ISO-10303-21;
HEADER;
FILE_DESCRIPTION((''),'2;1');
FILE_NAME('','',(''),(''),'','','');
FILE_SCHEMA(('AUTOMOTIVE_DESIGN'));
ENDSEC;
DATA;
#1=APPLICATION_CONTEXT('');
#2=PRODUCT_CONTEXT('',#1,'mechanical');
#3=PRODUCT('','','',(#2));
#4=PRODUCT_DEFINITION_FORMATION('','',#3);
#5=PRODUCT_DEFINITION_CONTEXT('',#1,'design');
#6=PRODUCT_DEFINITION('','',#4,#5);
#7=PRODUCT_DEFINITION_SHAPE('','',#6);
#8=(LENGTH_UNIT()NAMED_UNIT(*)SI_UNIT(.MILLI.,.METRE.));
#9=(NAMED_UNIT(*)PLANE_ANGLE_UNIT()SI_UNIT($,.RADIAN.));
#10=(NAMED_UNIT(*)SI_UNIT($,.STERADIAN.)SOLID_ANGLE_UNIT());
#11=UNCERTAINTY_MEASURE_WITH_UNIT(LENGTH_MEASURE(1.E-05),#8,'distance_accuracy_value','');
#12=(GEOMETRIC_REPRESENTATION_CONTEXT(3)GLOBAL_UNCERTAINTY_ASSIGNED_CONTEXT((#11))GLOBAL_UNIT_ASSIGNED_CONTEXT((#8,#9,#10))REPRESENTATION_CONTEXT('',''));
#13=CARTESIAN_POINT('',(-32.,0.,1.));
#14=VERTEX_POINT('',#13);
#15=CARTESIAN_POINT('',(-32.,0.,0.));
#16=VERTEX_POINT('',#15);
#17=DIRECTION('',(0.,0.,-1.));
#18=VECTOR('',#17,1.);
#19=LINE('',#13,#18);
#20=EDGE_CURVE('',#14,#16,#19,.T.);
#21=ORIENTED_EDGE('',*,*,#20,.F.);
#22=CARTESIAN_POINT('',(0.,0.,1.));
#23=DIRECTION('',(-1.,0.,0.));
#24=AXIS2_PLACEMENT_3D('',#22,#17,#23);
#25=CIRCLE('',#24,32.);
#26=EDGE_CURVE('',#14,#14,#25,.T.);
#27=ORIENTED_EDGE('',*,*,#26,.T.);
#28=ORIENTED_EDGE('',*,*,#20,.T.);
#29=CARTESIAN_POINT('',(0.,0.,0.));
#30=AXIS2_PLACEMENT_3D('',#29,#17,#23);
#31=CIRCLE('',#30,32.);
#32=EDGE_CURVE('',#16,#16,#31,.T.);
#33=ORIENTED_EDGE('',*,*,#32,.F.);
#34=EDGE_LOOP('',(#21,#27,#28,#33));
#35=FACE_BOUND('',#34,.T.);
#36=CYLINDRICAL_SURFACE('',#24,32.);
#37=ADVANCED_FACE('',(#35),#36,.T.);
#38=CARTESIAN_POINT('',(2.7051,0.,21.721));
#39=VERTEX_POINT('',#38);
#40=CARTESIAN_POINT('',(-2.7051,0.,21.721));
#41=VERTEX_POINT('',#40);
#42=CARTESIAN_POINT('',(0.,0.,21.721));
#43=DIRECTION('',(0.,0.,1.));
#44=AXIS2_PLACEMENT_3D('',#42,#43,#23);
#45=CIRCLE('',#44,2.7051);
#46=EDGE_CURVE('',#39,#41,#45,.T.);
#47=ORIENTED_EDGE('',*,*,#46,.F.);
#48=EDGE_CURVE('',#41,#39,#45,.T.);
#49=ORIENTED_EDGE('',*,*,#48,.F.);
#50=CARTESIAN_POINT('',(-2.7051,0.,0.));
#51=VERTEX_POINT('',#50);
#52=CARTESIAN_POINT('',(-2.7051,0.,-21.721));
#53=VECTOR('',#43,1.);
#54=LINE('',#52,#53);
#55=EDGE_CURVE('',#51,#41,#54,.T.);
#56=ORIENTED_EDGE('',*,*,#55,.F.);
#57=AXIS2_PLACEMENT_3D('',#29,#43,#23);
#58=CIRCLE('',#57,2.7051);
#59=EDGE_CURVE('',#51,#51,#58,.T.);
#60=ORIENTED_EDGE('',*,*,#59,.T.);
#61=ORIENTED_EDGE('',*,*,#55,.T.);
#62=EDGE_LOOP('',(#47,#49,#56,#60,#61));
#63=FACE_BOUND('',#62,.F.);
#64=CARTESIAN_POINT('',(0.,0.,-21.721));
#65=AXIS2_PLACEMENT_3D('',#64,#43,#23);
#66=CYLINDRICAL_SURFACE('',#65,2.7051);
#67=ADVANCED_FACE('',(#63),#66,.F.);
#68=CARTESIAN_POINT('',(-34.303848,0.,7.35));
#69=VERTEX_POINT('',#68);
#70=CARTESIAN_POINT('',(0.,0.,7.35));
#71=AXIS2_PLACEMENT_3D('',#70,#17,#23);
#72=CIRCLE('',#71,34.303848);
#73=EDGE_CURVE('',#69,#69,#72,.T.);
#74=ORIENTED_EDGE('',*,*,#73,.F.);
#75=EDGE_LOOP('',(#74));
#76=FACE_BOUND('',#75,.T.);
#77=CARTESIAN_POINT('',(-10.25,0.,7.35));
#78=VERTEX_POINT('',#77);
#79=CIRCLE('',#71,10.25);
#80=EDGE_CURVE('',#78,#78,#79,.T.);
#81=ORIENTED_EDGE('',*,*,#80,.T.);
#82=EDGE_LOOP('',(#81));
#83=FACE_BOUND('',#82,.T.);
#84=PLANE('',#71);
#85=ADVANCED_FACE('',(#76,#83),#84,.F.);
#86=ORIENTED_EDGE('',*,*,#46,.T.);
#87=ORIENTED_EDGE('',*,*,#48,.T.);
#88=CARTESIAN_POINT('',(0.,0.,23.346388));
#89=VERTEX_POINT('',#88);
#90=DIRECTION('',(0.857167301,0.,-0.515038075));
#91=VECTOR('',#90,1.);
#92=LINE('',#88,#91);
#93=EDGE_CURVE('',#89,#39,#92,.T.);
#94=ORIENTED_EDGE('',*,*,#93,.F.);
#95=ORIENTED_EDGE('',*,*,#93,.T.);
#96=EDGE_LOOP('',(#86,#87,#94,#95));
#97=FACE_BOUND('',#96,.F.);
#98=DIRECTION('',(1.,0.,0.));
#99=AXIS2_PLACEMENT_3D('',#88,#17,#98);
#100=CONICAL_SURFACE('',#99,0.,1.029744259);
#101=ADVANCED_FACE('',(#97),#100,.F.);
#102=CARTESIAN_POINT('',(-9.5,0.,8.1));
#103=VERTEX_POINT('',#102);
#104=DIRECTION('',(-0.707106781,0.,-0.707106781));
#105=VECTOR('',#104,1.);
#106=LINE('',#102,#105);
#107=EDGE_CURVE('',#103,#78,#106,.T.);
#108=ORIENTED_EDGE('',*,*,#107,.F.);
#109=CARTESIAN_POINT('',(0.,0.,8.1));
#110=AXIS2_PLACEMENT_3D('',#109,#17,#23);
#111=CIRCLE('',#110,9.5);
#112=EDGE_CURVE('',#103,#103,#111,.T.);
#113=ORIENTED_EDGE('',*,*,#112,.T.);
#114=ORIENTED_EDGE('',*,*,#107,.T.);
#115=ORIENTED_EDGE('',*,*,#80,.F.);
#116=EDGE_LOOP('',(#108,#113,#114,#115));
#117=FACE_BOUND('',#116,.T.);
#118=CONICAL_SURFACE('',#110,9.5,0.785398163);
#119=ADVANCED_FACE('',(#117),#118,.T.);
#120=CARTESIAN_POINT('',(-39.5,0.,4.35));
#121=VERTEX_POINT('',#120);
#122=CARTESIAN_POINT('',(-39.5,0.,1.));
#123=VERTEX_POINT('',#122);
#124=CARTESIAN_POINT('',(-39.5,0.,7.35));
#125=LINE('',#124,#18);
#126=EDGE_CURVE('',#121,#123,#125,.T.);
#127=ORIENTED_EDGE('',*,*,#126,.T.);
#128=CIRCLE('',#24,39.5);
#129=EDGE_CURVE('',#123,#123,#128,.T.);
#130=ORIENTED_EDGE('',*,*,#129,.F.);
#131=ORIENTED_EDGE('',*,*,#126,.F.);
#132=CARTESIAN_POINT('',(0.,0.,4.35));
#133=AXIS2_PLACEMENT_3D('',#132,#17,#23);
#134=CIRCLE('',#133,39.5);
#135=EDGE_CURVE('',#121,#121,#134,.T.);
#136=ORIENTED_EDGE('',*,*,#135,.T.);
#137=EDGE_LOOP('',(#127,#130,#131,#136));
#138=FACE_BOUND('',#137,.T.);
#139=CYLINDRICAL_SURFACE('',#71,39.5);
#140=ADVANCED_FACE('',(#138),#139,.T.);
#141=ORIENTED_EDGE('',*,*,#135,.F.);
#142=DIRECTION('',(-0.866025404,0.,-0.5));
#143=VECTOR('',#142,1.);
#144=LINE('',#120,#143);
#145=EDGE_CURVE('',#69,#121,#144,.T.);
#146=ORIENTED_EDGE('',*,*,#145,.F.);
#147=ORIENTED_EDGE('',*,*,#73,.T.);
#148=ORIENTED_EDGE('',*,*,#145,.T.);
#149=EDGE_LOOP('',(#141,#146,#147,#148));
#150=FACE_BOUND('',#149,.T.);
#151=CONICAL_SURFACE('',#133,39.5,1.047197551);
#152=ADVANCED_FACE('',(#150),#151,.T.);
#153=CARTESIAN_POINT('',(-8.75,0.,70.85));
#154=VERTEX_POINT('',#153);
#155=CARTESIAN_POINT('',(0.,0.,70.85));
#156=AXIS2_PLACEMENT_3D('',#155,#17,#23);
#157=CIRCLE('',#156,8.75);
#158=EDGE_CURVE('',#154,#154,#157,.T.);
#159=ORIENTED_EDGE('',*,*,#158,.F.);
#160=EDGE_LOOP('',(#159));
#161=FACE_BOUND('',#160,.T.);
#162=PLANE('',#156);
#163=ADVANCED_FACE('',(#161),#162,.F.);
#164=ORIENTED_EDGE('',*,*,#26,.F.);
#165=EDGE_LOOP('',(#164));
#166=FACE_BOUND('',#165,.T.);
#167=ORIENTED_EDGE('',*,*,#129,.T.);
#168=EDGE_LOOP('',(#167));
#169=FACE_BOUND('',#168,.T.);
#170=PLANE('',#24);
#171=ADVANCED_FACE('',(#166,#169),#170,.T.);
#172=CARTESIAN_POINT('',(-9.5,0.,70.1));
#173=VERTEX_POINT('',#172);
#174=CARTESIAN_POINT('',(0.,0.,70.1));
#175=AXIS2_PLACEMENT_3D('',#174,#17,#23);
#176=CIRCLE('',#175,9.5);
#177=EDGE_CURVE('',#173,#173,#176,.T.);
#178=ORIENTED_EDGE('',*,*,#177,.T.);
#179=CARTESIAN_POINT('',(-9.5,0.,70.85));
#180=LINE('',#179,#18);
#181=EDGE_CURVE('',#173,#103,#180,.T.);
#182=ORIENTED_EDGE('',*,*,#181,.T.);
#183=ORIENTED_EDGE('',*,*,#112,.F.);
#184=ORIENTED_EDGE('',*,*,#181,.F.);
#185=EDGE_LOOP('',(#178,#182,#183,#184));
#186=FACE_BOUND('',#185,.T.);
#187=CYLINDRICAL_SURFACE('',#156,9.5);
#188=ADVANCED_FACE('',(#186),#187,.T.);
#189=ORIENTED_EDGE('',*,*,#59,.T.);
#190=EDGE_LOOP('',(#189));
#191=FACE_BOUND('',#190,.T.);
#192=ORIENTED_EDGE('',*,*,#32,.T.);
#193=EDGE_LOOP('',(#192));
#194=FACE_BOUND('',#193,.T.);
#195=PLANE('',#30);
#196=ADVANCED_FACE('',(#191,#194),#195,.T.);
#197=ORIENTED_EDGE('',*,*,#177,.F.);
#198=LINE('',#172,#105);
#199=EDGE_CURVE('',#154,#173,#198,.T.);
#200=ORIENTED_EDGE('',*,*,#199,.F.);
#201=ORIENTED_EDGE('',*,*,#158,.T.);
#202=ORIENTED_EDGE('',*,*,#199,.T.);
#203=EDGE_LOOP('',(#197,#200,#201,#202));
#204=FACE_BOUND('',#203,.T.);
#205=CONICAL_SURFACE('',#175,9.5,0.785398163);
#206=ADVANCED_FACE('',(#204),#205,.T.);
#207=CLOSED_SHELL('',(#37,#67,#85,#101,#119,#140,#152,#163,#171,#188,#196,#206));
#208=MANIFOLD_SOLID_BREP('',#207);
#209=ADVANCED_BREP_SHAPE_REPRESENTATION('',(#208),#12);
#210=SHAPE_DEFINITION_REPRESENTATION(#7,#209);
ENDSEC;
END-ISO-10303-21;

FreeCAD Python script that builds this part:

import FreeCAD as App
import Part
import Sketcher
Q = App.Units.Quantity


def edges_at(feature, points):
    """Names of the edges that pass closest to the given points."""
    edges = feature.Shape.Edges
    near = lambda p: min(range(len(edges)), key=lambda i: edges[i].distToShape(Part.Vertex(*p))[0])
    return sorted({f"Edge{near(p) + 1}" for p in points})


def add_polygon(sketch, points):
    """Adds a closed chain of lines whose ends are joined by coincident constraints."""
    first, n = sketch.GeometryCount, len(points)
    for a, b in zip(points, points[1:] + points[:1]):
        sketch.addGeometry(Part.LineSegment(App.Vector(*a, 0), App.Vector(*b, 0)), False)
    for i in range(n):
        sketch.addConstraint(Sketcher.Constraint("Coincident", first + i, 2, first + (i + 1) % n, 1))

doc = App.newDocument("Part")
body = doc.addObject("PartDesign::Body", "Body")

# Sketch on XZ plane
sketch1 = doc.addObject("Sketcher::SketchObject", "Sketch")
body.addObject(sketch1)
sketch1.AttachmentSupport = (doc.XZ_Plane, [""])
sketch1.MapMode = "FlatFace"
add_polygon(sketch1, [(-32, 0), (0, 0), (0, 70.8), (-9.5, 70.8), (-9.5, 7.3), (-39.5, 7.3), (-39.5, 1), (-32, 1)])  # lines 0-7
sketch1.addConstraint([
    Sketcher.Constraint("Horizontal", 0),
    Sketcher.Constraint("Vertical", 1),
    Sketcher.Constraint("Horizontal", 2),
    Sketcher.Constraint("Vertical", 3),
    Sketcher.Constraint("Horizontal", 4),
    Sketcher.Constraint("Vertical", 5),
    Sketcher.Constraint("Horizontal", 6),
    Sketcher.Constraint("Vertical", 7),
    Sketcher.Constraint("Coincident", 0, 2, -1, 1),
    Sketcher.Constraint("DistanceX", 0, 1, 0, 2, Q("32 mm")),
    Sketcher.Constraint("DistanceX", 4, 2, 4, 1, Q("30 mm")),
    Sketcher.Constraint("DistanceY", 7, 2, 7, 1, Q("1 mm")),
    Sketcher.Constraint("DistanceX", 2, 2, 2, 1, Q("9.5 mm")),
    Sketcher.Constraint("DistanceY", 3, 2, 3, 1, Q("63.5 mm")),
    Sketcher.Constraint("DistanceY", 1, 1, 1, 2, Q("70.85 mm")),
])
revolution = doc.addObject("PartDesign::Revolution", "Revolution")
body.addObject(revolution)
revolution.Profile = sketch1
revolution.ReferenceAxis = (sketch1, ["V_Axis"])
revolution.Angle = 360
doc.recompute()

chamfer = doc.addObject("PartDesign::Chamfer", "Chamfer")
body.addObject(chamfer)
chamfer.Base = (revolution, edges_at(revolution, [(9.5, 0, 70.85), (9.5, 0, 7.35)]))
chamfer.Size = 0.75
doc.recompute()

chamfer2 = doc.addObject("PartDesign::Chamfer", "Chamfer001")
body.addObject(chamfer2)
chamfer2.Base = (chamfer, edges_at(chamfer, [(39.5, 0, 7.35)]))
chamfer2.ChamferType = "Two distances"
chamfer2.Size = 5.196152
chamfer2.Size2 = 3

# Sketch on XY plane
sketch2 = doc.addObject("Sketcher::SketchObject", "Sketch001")
body.addObject(sketch2)
sketch2.AttachmentSupport = (doc.XY_Plane, [""])
sketch2.MapMode = "FlatFace"
sketch2.addGeometry(Part.Circle(App.Vector(0, 0, 0), App.Vector(0, 0, 1), 2.7), False)
sketch2.addConstraint([
    Sketcher.Constraint("Coincident", 0, 3, -1, 1),
    Sketcher.Constraint("Diameter", 0, Q("5.4102 mm")),
])
doc.recompute()
hole = doc.addObject("PartDesign::Hole", "Hole")
body.addObject(hole)
hole.Profile = sketch2
hole.ThreadType = "None"
hole.Diameter = 5.4102
hole.DepthType = "Dimension"
hole.Depth = 21.721
hole.DrillPoint = "Angled"
hole.DrillPointAngle = 118
hole.Reversed = True

doc.recompute()
